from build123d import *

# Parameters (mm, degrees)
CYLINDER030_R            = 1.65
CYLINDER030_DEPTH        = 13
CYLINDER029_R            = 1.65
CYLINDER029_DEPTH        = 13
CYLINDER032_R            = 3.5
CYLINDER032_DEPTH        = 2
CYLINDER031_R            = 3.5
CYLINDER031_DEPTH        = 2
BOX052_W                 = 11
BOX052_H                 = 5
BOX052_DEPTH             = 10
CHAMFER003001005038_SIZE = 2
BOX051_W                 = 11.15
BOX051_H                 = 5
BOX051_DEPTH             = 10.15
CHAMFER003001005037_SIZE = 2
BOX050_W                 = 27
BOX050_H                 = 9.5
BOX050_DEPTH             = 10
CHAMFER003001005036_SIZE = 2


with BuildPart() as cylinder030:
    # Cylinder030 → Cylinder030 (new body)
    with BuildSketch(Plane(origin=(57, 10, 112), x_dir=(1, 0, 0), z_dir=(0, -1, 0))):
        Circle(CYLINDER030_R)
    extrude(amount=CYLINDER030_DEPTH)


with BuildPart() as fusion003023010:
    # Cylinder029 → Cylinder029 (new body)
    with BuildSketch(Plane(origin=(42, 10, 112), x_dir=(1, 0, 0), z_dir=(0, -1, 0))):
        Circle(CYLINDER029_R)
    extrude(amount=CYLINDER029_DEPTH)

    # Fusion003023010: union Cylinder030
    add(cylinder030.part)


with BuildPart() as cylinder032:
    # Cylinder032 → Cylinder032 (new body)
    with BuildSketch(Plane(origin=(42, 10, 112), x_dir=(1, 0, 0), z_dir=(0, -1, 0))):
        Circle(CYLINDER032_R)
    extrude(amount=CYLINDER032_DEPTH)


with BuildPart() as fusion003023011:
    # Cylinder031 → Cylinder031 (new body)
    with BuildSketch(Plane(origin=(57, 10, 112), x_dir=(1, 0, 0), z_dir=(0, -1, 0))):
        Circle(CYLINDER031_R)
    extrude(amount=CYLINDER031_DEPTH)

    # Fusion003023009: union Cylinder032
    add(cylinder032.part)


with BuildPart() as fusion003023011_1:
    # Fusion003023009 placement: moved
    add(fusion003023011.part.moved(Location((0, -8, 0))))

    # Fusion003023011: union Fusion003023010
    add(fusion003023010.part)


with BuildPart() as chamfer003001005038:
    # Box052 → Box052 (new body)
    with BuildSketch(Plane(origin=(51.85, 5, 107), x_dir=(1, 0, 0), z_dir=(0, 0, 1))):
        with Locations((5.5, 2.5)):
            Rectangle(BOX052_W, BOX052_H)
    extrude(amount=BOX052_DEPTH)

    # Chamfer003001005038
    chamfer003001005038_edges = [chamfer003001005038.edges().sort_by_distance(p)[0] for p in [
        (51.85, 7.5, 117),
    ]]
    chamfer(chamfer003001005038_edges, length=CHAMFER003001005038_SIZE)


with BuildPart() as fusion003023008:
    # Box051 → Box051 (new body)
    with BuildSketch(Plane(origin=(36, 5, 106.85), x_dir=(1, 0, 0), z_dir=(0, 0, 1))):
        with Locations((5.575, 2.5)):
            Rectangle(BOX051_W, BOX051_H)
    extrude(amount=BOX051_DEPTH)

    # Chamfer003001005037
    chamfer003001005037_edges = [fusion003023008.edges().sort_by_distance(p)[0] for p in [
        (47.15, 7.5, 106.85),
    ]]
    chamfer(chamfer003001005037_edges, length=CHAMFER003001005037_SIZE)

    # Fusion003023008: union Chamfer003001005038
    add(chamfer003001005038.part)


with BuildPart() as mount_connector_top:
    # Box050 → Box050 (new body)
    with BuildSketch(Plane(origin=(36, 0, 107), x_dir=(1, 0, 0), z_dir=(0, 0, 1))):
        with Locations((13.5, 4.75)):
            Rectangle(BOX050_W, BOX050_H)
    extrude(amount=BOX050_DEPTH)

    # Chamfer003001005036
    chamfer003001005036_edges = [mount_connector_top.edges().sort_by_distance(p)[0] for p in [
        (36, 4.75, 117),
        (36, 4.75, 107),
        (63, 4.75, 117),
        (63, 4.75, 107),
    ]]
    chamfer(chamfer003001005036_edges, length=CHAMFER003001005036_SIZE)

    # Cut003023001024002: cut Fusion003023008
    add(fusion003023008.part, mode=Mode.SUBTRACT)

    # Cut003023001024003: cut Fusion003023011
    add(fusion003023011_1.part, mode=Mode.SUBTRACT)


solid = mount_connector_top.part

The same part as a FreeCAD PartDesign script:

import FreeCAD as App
import Part
import Sketcher

V = App.Vector
Q = App.Units.Quantity


def edges_at(feature, points):
    """Names of the edges that pass closest to the given points."""
    edges = feature.Shape.Edges
    near = lambda p: min(range(len(edges)), key=lambda i: edges[i].distToShape(Part.Vertex(*p))[0])
    return sorted({f"Edge{near(p) + 1}" for p in points})


def add_polygon(sketch, points):
    """Adds a closed chain of lines whose ends are joined by coincident constraints."""
    first, n = sketch.GeometryCount, len(points)
    for a, b in zip(points, points[1:] + points[:1]):
        sketch.addGeometry(Part.LineSegment(App.Vector(*a, 0), App.Vector(*b, 0)), False)
    for i in range(n):
        sketch.addConstraint(Sketcher.Constraint("Coincident", first + i, 2, first + (i + 1) % n, 1))

doc = App.newDocument("Part")
body = doc.addObject("PartDesign::Body", "Body")

# Sketch on XZ plane
sketch1 = body.newObject("Sketcher::SketchObject", "Sketch")
sketch1.AttachmentSupport = (doc.getObject("XZ_Plane"), [""])
sketch1.MapMode = "FlatFace"
sketch1.AttachmentOffset = App.Placement(V(0, 0, -10), App.Rotation())
sketch1.addGeometry(Part.Circle(V(57, 112, 0), V(0, 0, 1), 1.65), False)
sketch1.addConstraint(Sketcher.Constraint("Diameter", 0, Q("3.3 mm")))
sketch1.addConstraint(Sketcher.Constraint("DistanceX", -1, 1, 0, 3, Q("57 mm")))
sketch1.addConstraint(Sketcher.Constraint("DistanceY", -1, 1, 0, 3, Q("112 mm")))
pad1 = body.newObject("PartDesign::Pad", "Pad")
pad1.Profile = sketch1
pad1.Length = 13
body2 = doc.addObject("PartDesign::Body", "Body001")
body2.AllowCompound = True

# Sketch on XZ plane
sketch2 = body2.newObject("Sketcher::SketchObject", "Sketch001")
sketch2.AttachmentSupport = (doc.getObject("XZ_Plane001"), [""])
sketch2.MapMode = "FlatFace"
sketch2.AttachmentOffset = App.Placement(V(0, 0, -10), App.Rotation())
sketch2.addGeometry(Part.Circle(V(42, 112, 0), V(0, 0, 1), 1.65), False)
sketch2.addConstraint(Sketcher.Constraint("Diameter", 0, Q("3.3 mm")))
sketch2.addConstraint(Sketcher.Constraint("DistanceX", -1, 1, 0, 3, Q("42 mm")))
sketch2.addConstraint(Sketcher.Constraint("DistanceY", -1, 1, 0, 3, Q("112 mm")))
pad2 = body2.newObject("PartDesign::Pad", "Pad001")
pad2.Profile = sketch2
pad2.Length = 13
doc.recompute()

boolean = body2.newObject("PartDesign::Boolean", "Boolean")
boolean.Type = "Fuse"
boolean.addObjects([body])
body3 = doc.addObject("PartDesign::Body", "Body002")

# Sketch on XZ plane
sketch3 = body3.newObject("Sketcher::SketchObject", "Sketch002")
sketch3.AttachmentSupport = (doc.getObject("XZ_Plane002"), [""])
sketch3.MapMode = "FlatFace"
sketch3.AttachmentOffset = App.Placement(V(0, 0, -10), App.Rotation())
sketch3.addGeometry(Part.Circle(V(42, 112, 0), V(0, 0, 1), 3.5), False)
sketch3.addConstraint(Sketcher.Constraint("Diameter", 0, Q("7 mm")))
sketch3.addConstraint(Sketcher.Constraint("DistanceX", -1, 1, 0, 3, Q("42 mm")))
sketch3.addConstraint(Sketcher.Constraint("DistanceY", -1, 1, 0, 3, Q("112 mm")))
pad3 = body3.newObject("PartDesign::Pad", "Pad002")
pad3.Profile = sketch3
pad3.Length = 2
body4 = doc.addObject("PartDesign::Body", "Body003")
body4.AllowCompound = True

# Sketch on XZ plane
sketch4 = body4.newObject("Sketcher::SketchObject", "Sketch003")
sketch4.AttachmentSupport = (doc.getObject("XZ_Plane003"), [""])
sketch4.MapMode = "FlatFace"
sketch4.AttachmentOffset = App.Placement(V(0, 0, -10), App.Rotation())
sketch4.addGeometry(Part.Circle(V(57, 112, 0), V(0, 0, 1), 3.5), False)
sketch4.addConstraint(Sketcher.Constraint("Diameter", 0, Q("7 mm")))
sketch4.addConstraint(Sketcher.Constraint("DistanceX", -1, 1, 0, 3, Q("57 mm")))
sketch4.addConstraint(Sketcher.Constraint("DistanceY", -1, 1, 0, 3, Q("112 mm")))
pad4 = body4.newObject("PartDesign::Pad", "Pad003")
pad4.Profile = sketch4
pad4.Length = 2
doc.recompute()

boolean2 = body4.newObject("PartDesign::Boolean", "Boolean001")
boolean2.Type = "Fuse"
boolean2.addObjects([body3])
body5 = doc.addObject("PartDesign::Body", "Body004")
body5.AllowCompound = True
doc.recompute()

body4.Placement = App.Placement(V(0, -8, 0), App.Rotation(V(0, 0, 1), 0))
boolean3 = body5.newObject("PartDesign::Boolean", "Boolean002")
boolean3.Type = "Fuse"
boolean3.addObjects([body4])
doc.recompute()

boolean4 = body5.newObject("PartDesign::Boolean", "Boolean003")
boolean4.Type = "Fuse"
boolean4.addObjects([body2])
body6 = doc.addObject("PartDesign::Body", "Body005")

# Sketch on XY plane
sketch5 = body6.newObject("Sketcher::SketchObject", "Sketch004")
sketch5.AttachmentSupport = (doc.getObject("XY_Plane005"), [""])
sketch5.MapMode = "FlatFace"
sketch5.AttachmentOffset = App.Placement(V(0, 0, 107), App.Rotation())
add_polygon(sketch5, [(51.85, 10), (51.85, 5), (62.85, 5), (62.85, 10)])  # lines 0-3
sketch5.addConstraint(Sketcher.Constraint("Vertical", 0))
sketch5.addConstraint(Sketcher.Constraint("Horizontal", 1))
sketch5.addConstraint(Sketcher.Constraint("Vertical", 2))
sketch5.addConstraint(Sketcher.Constraint("Horizontal", 3))
sketch5.addConstraint(Sketcher.Constraint("DistanceX", 1, 1, 1, 2, Q("11 mm")))
sketch5.addConstraint(Sketcher.Constraint("DistanceY", 0, 2, 0, 1, Q("5 mm")))
sketch5.addConstraint(Sketcher.Constraint("DistanceY", -1, 1, 0, 2, Q("5 mm")))
sketch5.addConstraint(Sketcher.Constraint("DistanceX", -1, 1, 0, 2, Q("51.85 mm")))
pad5 = body6.newObject("PartDesign::Pad", "Pad004")
pad5.Profile = sketch5
pad5.Length = 10
doc.recompute()

chamfer = body6.newObject("PartDesign::Chamfer", "Chamfer")
chamfer.Base = (pad5, edges_at(pad5, [(51.85, 7.5, 117)]))
chamfer.Size = 2
body7 = doc.addObject("PartDesign::Body", "Body006")
body7.AllowCompound = True

# Sketch on XY plane
sketch6 = body7.newObject("Sketcher::SketchObject", "Sketch005")
sketch6.AttachmentSupport = (doc.getObject("XY_Plane006"), [""])
sketch6.MapMode = "FlatFace"
sketch6.AttachmentOffset = App.Placement(V(0, 0, 106.85), App.Rotation())
add_polygon(sketch6, [(36, 10), (36, 5), (47.15, 5), (47.15, 10)])  # lines 0-3
sketch6.addConstraint(Sketcher.Constraint("Vertical", 0))
sketch6.addConstraint(Sketcher.Constraint("Horizontal", 1))
sketch6.addConstraint(Sketcher.Constraint("Vertical", 2))
sketch6.addConstraint(Sketcher.Constraint("Horizontal", 3))
sketch6.addConstraint(Sketcher.Constraint("DistanceY", 0, 2, 0, 1, Q("5 mm")))
sketch6.addConstraint(Sketcher.Constraint("DistanceX", -1, 1, 0, 2, Q("36 mm")))
sketch6.addConstraint(Sketcher.Constraint("DistanceY", -1, 1, 0, 2, Q("5 mm")))
sketch6.addConstraint(Sketcher.Constraint("DistanceX", 1, 1, 1, 2, Q("11.15 mm")))
pad6 = body7.newObject("PartDesign::Pad", "Pad005")
pad6.Profile = sketch6
pad6.Length = 10.15
doc.recompute()

chamfer2 = body7.newObject("PartDesign::Chamfer", "Chamfer001")
chamfer2.Base = (pad6, edges_at(pad6, [(47.15, 7.5, 106.85)]))
chamfer2.Size = 2
doc.recompute()

boolean5 = body7.newObject("PartDesign::Boolean", "Boolean004")
boolean5.Type = "Fuse"
boolean5.addObjects([body6])
body8 = doc.addObject("PartDesign::Body", "Body007")

# Sketch on XY plane
sketch7 = body8.newObject("Sketcher::SketchObject", "Sketch006")
sketch7.AttachmentSupport = (doc.getObject("XY_Plane007"), [""])
sketch7.MapMode = "FlatFace"
sketch7.AttachmentOffset = App.Placement(V(0, 0, 107), App.Rotation())
add_polygon(sketch7, [(36, 9.5), (36, 0), (63, 0), (63, 9.5)])  # lines 0-3
sketch7.addConstraint(Sketcher.Constraint("Vertical", 0))
sketch7.addConstraint(Sketcher.Constraint("Horizontal", 1))
sketch7.addConstraint(Sketcher.Constraint("Vertical", 2))
sketch7.addConstraint(Sketcher.Constraint("Horizontal", 3))
sketch7.addConstraint(Sketcher.Constraint("PointOnObject", 0, 2, -1))
sketch7.addConstraint(Sketcher.Constraint("DistanceX", 1, 1, 1, 2, Q("27 mm")))
sketch7.addConstraint(Sketcher.Constraint("DistanceY", 0, 2, 0, 1, Q("9.5 mm")))
sketch7.addConstraint(Sketcher.Constraint("DistanceX", -1, 1, 0, 2, Q("36 mm")))
pad7 = body8.newObject("PartDesign::Pad", "Pad006")
pad7.Profile = sketch7
pad7.Length = 10
doc.recompute()

chamfer3 = body8.newObject("PartDesign::Chamfer", "Chamfer002")
chamfer3.Base = (pad7, edges_at(pad7, [
    (36, 4.75, 117),
    (36, 4.75, 107),
    (63, 4.75, 117),
    (63, 4.75, 107),
]))
chamfer3.Size = 2
doc.recompute()

boolean6 = body8.newObject("PartDesign::Boolean", "Boolean005")
boolean6.Type = "Cut"
boolean6.addObjects([body7])
doc.recompute()

boolean7 = body8.newObject("PartDesign::Boolean", "Boolean006")
boolean7.Type = "Cut"
boolean7.addObjects([body5])

doc.recompute()
